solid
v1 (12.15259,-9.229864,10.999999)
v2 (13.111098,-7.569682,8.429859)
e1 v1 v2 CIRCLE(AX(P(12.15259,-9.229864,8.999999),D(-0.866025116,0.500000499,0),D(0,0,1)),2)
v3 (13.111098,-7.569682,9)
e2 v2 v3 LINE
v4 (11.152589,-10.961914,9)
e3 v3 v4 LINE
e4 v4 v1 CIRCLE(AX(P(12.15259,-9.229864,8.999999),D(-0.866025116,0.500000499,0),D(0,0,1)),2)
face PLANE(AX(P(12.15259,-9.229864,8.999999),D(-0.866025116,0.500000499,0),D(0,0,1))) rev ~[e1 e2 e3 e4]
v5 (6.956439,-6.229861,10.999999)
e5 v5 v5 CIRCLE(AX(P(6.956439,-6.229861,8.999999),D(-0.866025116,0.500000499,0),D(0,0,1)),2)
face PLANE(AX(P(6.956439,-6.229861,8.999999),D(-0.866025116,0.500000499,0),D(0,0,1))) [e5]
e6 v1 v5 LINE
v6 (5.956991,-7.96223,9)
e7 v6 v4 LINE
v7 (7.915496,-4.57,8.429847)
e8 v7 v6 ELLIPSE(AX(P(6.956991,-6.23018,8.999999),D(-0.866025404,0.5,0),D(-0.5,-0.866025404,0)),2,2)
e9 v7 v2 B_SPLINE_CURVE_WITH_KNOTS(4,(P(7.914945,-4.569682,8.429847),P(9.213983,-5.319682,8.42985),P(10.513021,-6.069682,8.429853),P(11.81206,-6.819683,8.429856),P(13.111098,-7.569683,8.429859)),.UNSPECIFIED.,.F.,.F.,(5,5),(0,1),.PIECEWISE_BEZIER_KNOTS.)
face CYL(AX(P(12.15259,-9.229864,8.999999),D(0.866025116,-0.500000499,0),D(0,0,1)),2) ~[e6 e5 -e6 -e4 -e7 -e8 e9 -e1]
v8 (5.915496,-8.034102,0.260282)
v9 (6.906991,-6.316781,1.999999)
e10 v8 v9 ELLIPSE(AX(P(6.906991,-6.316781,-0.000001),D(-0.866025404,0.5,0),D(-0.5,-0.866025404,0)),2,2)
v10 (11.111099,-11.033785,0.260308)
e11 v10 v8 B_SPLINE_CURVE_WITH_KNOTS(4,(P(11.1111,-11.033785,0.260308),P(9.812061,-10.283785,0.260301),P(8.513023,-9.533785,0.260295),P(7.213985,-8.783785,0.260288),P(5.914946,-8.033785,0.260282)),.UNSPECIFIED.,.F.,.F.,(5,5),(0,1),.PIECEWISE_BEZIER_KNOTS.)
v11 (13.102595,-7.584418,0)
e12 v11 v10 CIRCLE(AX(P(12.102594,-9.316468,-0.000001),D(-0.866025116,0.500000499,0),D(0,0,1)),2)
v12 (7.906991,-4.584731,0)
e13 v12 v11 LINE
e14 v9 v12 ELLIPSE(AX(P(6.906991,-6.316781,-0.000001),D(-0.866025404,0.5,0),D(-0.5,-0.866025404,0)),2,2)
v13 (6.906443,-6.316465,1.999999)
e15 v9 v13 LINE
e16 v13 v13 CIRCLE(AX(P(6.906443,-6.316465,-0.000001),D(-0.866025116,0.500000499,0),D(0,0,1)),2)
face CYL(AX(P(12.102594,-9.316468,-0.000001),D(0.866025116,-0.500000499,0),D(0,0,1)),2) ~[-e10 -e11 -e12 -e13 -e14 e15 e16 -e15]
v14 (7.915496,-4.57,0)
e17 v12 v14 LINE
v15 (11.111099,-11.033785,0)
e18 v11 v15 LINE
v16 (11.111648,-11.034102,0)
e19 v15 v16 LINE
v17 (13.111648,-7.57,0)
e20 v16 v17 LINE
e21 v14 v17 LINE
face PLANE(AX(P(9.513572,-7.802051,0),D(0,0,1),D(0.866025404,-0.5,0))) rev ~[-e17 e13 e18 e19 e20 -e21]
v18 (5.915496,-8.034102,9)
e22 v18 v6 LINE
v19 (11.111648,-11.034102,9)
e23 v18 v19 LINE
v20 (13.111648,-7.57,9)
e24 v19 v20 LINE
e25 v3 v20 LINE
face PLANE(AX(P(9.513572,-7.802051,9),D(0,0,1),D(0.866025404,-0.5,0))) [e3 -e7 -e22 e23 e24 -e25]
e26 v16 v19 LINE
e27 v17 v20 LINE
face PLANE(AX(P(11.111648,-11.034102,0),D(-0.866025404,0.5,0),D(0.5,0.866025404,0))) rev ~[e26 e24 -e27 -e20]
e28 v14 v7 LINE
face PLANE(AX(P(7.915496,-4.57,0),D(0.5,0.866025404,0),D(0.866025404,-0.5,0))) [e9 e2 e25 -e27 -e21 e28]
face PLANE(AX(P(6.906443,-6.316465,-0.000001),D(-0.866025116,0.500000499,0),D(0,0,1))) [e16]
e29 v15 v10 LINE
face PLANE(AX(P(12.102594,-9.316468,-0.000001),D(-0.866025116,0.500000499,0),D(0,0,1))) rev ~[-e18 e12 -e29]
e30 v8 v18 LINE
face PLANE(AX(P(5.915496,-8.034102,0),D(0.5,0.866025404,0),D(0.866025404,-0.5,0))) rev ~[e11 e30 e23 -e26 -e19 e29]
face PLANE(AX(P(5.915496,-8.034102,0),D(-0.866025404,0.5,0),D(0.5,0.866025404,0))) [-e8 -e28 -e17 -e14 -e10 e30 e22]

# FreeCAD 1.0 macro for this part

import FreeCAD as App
import Part
import Sketcher
Q = App.Units.Quantity


def add_polygon(sketch, points):
    """Adds a closed chain of lines whose ends are joined by coincident constraints."""
    first, n = sketch.GeometryCount, len(points)
    for a, b in zip(points, points[1:] + points[:1]):
        sketch.addGeometry(Part.LineSegment(App.Vector(*a, 0), App.Vector(*b, 0)), False)
    for i in range(n):
        sketch.addConstraint(Sketcher.Constraint("Coincident", first + i, 2, first + (i + 1) % n, 1))

doc = App.newDocument("Part")
body = doc.addObject("PartDesign::Body", "Body")

sketch1 = body.newObject("Sketcher::SketchObject", "Sketch")
sketch1.AttachmentSupport = (doc.getObject("XY_Plane"), [""])
sketch1.MapMode = "FlatFace"
sketch1.addGeometry(Part.Circle(App.Vector(0, 0, 0), App.Vector(0, 0, 1), 2), False)
sketch1.addConstraint([
    Sketcher.Constraint("Coincident", 0, 3, -1, 1),
    Sketcher.Constraint("Diameter", 0, Q("4 mm")),
])
pad1 = body.newObject("PartDesign::Pad", "Pad")
pad1.Profile = sketch1
pad1.Length = 6
body2 = doc.addObject("PartDesign::Body", "Body001")
doc.recompute()

body.Placement = App.Placement(App.Vector(0, 0, 0), App.Rotation(App.Vector(0, 1, 0), 270))
boolean = body2.newObject("PartDesign::Boolean", "Boolean")
boolean.Type = "Fuse"
boolean.addObjects([body])
body3 = doc.addObject("PartDesign::Body", "Body002")
doc.recompute()

body2.Placement = App.Placement(App.Vector(12.102594, -9.316468, -0.000001), App.Rotation(App.Vector(0, 0, 1), 329.999967))
boolean2 = body3.newObject("PartDesign::Boolean", "Boolean001")
boolean2.Type = "Fuse"
boolean2.addObjects([body2])
body4 = doc.addObject("PartDesign::Body", "Body003")

sketch2 = body4.newObject("Sketcher::SketchObject", "Sketch001")
sketch2.AttachmentSupport = (doc.getObject("XY_Plane003"), [""])
sketch2.MapMode = "FlatFace"
sketch2.addGeometry(Part.Circle(App.Vector(0, 0, 0), App.Vector(0, 0, 1), 2), False)
sketch2.addConstraint([
    Sketcher.Constraint("Coincident", 0, 3, -1, 1),
    Sketcher.Constraint("Diameter", 0, Q("4 mm")),
])
pad2 = body4.newObject("PartDesign::Pad", "Pad001")
pad2.Profile = sketch2
pad2.Length = 6
body5 = doc.addObject("PartDesign::Body", "Body004")
doc.recompute()

body4.Placement = App.Placement(App.Vector(0, 0, 0), App.Rotation(App.Vector(0, 1, 0), 270))
boolean3 = body5.newObject("PartDesign::Boolean", "Boolean002")
boolean3.Type = "Fuse"
boolean3.addObjects([body4])
body6 = doc.addObject("PartDesign::Body", "Body005")
doc.recompute()

body5.Placement = App.Placement(App.Vector(12.15259, -9.229864, 8.999999), App.Rotation(App.Vector(0, 0, 1), 329.999967))
boolean4 = body6.newObject("PartDesign::Boolean", "Boolean003")
boolean4.Type = "Fuse"
boolean4.addObjects([body5])
body7 = doc.addObject("PartDesign::Body", "Body006")

sketch3 = body7.newObject("Sketcher::SketchObject", "Sketch002")
sketch3.AttachmentSupport = (doc.getObject("XY_Plane006"), [""])
sketch3.MapMode = "FlatFace"
add_polygon(sketch3, [(0, 4), (0, 0), (6, 0), (6, 4)])
sketch3.addConstraint([
    Sketcher.Constraint("Vertical", 0),
    Sketcher.Constraint("Horizontal", 1),
    Sketcher.Constraint("Vertical", 2),
    Sketcher.Constraint("Horizontal", 3),
    Sketcher.Constraint("Coincident", 0, 2, -1, 1),
    Sketcher.Constraint("DistanceX", 1, 1, 1, 2, Q("6 mm")),
    Sketcher.Constraint("DistanceY", 0, 2, 0, 1, Q("4 mm")),
])
pad3 = body7.newObject("PartDesign::Pad", "Pad002")
pad3.Profile = sketch3
pad3.Length = 9
body8 = doc.addObject("PartDesign::Body", "Body007")
doc.recompute()

body7.Placement = App.Placement(App.Vector(5.915496, -8.034102, 0), App.Rotation(App.Vector(0, 0, -1), 30))
boolean5 = body8.newObject("PartDesign::Boolean", "Boolean004")
boolean5.Type = "Fuse"
boolean5.addObjects([body7])
doc.recompute()

boolean6 = body8.newObject("PartDesign::Boolean", "Boolean005")
boolean6.Type = "Fuse"
boolean6.addObjects([body3])
doc.recompute()

boolean7 = body8.newObject("PartDesign::Boolean", "Boolean006")
boolean7.Type = "Fuse"
boolean7.addObjects([body6])

doc.recompute()
